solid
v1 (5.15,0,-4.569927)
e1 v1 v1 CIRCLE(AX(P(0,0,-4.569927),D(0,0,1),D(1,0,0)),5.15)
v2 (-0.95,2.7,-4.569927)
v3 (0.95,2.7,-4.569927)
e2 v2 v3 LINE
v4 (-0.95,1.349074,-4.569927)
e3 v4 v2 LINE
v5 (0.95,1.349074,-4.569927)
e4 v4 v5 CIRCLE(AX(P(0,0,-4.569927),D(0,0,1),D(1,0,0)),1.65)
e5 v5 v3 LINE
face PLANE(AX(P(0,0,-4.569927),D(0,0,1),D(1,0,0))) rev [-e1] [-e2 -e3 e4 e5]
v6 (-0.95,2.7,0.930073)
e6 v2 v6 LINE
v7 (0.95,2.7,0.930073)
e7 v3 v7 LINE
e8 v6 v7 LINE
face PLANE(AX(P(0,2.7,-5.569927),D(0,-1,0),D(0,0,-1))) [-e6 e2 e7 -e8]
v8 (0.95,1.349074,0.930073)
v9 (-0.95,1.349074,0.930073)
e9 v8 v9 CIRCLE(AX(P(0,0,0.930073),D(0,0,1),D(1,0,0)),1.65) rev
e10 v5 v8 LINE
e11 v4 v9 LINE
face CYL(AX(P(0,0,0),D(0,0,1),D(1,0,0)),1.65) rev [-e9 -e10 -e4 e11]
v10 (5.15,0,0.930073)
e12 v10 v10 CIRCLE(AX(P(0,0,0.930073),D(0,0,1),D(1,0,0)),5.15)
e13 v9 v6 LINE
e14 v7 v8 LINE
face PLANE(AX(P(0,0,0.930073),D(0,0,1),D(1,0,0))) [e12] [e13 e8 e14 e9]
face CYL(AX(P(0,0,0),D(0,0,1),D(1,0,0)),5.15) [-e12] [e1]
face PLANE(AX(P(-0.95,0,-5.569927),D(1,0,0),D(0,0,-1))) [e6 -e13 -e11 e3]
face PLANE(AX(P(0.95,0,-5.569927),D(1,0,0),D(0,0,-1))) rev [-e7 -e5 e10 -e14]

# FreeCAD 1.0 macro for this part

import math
import FreeCAD as App
import Part
import Sketcher


def add_polygon(sketch, points):
    """Adds a closed chain of lines whose ends are joined by coincident constraints."""
    first, n = sketch.GeometryCount, len(points)
    for a, b in zip(points, points[1:] + points[:1]):
        sketch.addGeometry(Part.LineSegment(App.Vector(*a, 0), App.Vector(*b, 0)), False)
    for i in range(n):
        sketch.addConstraint(Sketcher.Constraint("Coincident", first + i, 2, first + (i + 1) % n, 1))

doc = App.newDocument("Part")
body = doc.addObject("PartDesign::Body", "Body")

sketch1 = body.newObject("Sketcher::SketchObject", "Sketch")
sketch1.AttachmentSupport = (doc.getObject("XZ_Plane"), [""])
sketch1.MapMode = "FlatFace"
add_polygon(sketch1, [(1.6, -4.6), (1.6, -1.6), (5.2, -1.6), (5.2, -4.6)])
sketch1.addConstraint(Sketcher.Constraint("Vertical", 0))
sketch1.addConstraint(Sketcher.Constraint("Horizontal", 1))
sketch1.addConstraint(Sketcher.Constraint("Vertical", 2))
sketch1.addConstraint(Sketcher.Constraint("Horizontal", 3))
sketch1.addConstraint(Sketcher.Constraint("DistanceY", 0, 1, 0, 2, 3.0))
sketch1.addConstraint(Sketcher.Constraint("DistanceX", 1, 1, 1, 2, 3.5))
sketch1.addConstraint(Sketcher.Constraint("DistanceX", -1, 1, 0, 2, 1.65))
sketch1.addConstraint(Sketcher.Constraint("DistanceY", 0, 2, -1, 1, 1.569927))
revolution = body.newObject("PartDesign::Revolution", "Revolution")
revolution.Profile = sketch1
revolution.ReferenceAxis = (sketch1, ["V_Axis"])
revolution.Angle = 360

sketch2 = body.newObject("Sketcher::SketchObject", "Sketch001")
sketch2.AttachmentSupport = (doc.getObject("XY_Plane"), [""])
sketch2.MapMode = "FlatFace"
sketch2.AttachmentOffset = App.Placement(App.Vector(0, 0, -1.569927), App.Rotation())
sketch2.addGeometry(Part.LineSegment(App.Vector(-0.9, 2.7, 0), App.Vector(-0.9, 1.3, 0)), False)
sketch2.addGeometry(Part.ArcOfCircle(Part.Circle(App.Vector(0, 0, 0), App.Vector(0, 0, 1), 1.6), math.radians(55), math.radians(125)), False)
sketch2.addGeometry(Part.LineSegment(App.Vector(0.9, 1.3, 0), App.Vector(0.9, 2.7, 0)), False)
sketch2.addGeometry(Part.LineSegment(App.Vector(0.9, 2.7, 0), App.Vector(-0.9, 2.7, 0)), False)
sketch2.addConstraint(Sketcher.Constraint("Coincident", 0, 2, 1, 2))
sketch2.addConstraint(Sketcher.Constraint("Coincident", 1, 1, 2, 1))
sketch2.addConstraint(Sketcher.Constraint("Coincident", 2, 2, 3, 1))
sketch2.addConstraint(Sketcher.Constraint("Coincident", 3, 2, 0, 1))
sketch2.addConstraint(Sketcher.Constraint("Vertical", 0))
sketch2.addConstraint(Sketcher.Constraint("Vertical", 2))
sketch2.addConstraint(Sketcher.Constraint("Horizontal", 3))
sketch2.addConstraint(Sketcher.Constraint("Coincident", 1, 3, -1, 1))
sketch2.addConstraint(Sketcher.Constraint("Horizontal", 0, 2, 1, 1))
sketch2.addConstraint(Sketcher.Constraint("Radius", 1, 1.65))
sketch2.addConstraint(Sketcher.Constraint("DistanceX", 3, 2, 3, 1, 1.9))
sketch2.addConstraint(Sketcher.Constraint("DistanceY", -1, 1, 2, 2, 2.7))
pocket1 = body.newObject("PartDesign::Pocket", "Pocket")
pocket1.Profile = sketch2
pocket1.Length = 4

sketch3 = body.newObject("Sketcher::SketchObject", "Sketch002")
sketch3.AttachmentSupport = (doc.getObject("XY_Plane"), [""])
sketch3.MapMode = "FlatFace"
sketch3.AttachmentOffset = App.Placement(App.Vector(0, 0, -1.569927), App.Rotation())
sketch3.addGeometry(Part.Circle(App.Vector(0, 0, 0), App.Vector(0, 0, 1), 5.2), False)
sketch3.addGeometry(Part.LineSegment(App.Vector(-0.9, 2.7, 0), App.Vector(0.9, 2.7, 0)), False)
sketch3.addGeometry(Part.LineSegment(App.Vector(0.9, 2.7, 0), App.Vector(0.9, 1.3, 0)), False)
sketch3.addGeometry(Part.ArcOfCircle(Part.Circle(App.Vector(0, 0, 0), App.Vector(0, 0, 1), 1.6), math.radians(125), math.radians(415)), False)
sketch3.addGeometry(Part.LineSegment(App.Vector(-0.9, 1.3, 0), App.Vector(-0.9, 2.7, 0)), False)
sketch3.addConstraint(Sketcher.Constraint("Coincident", 1, 2, 2, 1))
sketch3.addConstraint(Sketcher.Constraint("Coincident", 2, 2, 3, 2))
sketch3.addConstraint(Sketcher.Constraint("Coincident", 3, 1, 4, 1))
sketch3.addConstraint(Sketcher.Constraint("Coincident", 4, 2, 1, 1))
sketch3.addConstraint(Sketcher.Constraint("Horizontal", 1))
sketch3.addConstraint(Sketcher.Constraint("Vertical", 2))
sketch3.addConstraint(Sketcher.Constraint("Vertical", 4))
sketch3.addConstraint(Sketcher.Constraint("Coincident", 0, 3, -1, 1))
sketch3.addConstraint(Sketcher.Constraint("Coincident", 3, 3, -1, 1))
sketch3.addConstraint(Sketcher.Constraint("Horizontal", 2, 2, 3, 1))
sketch3.addConstraint(Sketcher.Constraint("Diameter", 0, 10.3))
sketch3.addConstraint(Sketcher.Constraint("Radius", 3, 1.65))
sketch3.addConstraint(Sketcher.Constraint("DistanceX", 1, 1, 1, 2, 1.9))
sketch3.addConstraint(Sketcher.Constraint("DistanceY", -1, 1, 1, 2, 2.7))
pad1 = body.newObject("PartDesign::Pad", "Pad")
pad1.Profile = sketch3
pad1.Length = 2.5

doc.recompute()
